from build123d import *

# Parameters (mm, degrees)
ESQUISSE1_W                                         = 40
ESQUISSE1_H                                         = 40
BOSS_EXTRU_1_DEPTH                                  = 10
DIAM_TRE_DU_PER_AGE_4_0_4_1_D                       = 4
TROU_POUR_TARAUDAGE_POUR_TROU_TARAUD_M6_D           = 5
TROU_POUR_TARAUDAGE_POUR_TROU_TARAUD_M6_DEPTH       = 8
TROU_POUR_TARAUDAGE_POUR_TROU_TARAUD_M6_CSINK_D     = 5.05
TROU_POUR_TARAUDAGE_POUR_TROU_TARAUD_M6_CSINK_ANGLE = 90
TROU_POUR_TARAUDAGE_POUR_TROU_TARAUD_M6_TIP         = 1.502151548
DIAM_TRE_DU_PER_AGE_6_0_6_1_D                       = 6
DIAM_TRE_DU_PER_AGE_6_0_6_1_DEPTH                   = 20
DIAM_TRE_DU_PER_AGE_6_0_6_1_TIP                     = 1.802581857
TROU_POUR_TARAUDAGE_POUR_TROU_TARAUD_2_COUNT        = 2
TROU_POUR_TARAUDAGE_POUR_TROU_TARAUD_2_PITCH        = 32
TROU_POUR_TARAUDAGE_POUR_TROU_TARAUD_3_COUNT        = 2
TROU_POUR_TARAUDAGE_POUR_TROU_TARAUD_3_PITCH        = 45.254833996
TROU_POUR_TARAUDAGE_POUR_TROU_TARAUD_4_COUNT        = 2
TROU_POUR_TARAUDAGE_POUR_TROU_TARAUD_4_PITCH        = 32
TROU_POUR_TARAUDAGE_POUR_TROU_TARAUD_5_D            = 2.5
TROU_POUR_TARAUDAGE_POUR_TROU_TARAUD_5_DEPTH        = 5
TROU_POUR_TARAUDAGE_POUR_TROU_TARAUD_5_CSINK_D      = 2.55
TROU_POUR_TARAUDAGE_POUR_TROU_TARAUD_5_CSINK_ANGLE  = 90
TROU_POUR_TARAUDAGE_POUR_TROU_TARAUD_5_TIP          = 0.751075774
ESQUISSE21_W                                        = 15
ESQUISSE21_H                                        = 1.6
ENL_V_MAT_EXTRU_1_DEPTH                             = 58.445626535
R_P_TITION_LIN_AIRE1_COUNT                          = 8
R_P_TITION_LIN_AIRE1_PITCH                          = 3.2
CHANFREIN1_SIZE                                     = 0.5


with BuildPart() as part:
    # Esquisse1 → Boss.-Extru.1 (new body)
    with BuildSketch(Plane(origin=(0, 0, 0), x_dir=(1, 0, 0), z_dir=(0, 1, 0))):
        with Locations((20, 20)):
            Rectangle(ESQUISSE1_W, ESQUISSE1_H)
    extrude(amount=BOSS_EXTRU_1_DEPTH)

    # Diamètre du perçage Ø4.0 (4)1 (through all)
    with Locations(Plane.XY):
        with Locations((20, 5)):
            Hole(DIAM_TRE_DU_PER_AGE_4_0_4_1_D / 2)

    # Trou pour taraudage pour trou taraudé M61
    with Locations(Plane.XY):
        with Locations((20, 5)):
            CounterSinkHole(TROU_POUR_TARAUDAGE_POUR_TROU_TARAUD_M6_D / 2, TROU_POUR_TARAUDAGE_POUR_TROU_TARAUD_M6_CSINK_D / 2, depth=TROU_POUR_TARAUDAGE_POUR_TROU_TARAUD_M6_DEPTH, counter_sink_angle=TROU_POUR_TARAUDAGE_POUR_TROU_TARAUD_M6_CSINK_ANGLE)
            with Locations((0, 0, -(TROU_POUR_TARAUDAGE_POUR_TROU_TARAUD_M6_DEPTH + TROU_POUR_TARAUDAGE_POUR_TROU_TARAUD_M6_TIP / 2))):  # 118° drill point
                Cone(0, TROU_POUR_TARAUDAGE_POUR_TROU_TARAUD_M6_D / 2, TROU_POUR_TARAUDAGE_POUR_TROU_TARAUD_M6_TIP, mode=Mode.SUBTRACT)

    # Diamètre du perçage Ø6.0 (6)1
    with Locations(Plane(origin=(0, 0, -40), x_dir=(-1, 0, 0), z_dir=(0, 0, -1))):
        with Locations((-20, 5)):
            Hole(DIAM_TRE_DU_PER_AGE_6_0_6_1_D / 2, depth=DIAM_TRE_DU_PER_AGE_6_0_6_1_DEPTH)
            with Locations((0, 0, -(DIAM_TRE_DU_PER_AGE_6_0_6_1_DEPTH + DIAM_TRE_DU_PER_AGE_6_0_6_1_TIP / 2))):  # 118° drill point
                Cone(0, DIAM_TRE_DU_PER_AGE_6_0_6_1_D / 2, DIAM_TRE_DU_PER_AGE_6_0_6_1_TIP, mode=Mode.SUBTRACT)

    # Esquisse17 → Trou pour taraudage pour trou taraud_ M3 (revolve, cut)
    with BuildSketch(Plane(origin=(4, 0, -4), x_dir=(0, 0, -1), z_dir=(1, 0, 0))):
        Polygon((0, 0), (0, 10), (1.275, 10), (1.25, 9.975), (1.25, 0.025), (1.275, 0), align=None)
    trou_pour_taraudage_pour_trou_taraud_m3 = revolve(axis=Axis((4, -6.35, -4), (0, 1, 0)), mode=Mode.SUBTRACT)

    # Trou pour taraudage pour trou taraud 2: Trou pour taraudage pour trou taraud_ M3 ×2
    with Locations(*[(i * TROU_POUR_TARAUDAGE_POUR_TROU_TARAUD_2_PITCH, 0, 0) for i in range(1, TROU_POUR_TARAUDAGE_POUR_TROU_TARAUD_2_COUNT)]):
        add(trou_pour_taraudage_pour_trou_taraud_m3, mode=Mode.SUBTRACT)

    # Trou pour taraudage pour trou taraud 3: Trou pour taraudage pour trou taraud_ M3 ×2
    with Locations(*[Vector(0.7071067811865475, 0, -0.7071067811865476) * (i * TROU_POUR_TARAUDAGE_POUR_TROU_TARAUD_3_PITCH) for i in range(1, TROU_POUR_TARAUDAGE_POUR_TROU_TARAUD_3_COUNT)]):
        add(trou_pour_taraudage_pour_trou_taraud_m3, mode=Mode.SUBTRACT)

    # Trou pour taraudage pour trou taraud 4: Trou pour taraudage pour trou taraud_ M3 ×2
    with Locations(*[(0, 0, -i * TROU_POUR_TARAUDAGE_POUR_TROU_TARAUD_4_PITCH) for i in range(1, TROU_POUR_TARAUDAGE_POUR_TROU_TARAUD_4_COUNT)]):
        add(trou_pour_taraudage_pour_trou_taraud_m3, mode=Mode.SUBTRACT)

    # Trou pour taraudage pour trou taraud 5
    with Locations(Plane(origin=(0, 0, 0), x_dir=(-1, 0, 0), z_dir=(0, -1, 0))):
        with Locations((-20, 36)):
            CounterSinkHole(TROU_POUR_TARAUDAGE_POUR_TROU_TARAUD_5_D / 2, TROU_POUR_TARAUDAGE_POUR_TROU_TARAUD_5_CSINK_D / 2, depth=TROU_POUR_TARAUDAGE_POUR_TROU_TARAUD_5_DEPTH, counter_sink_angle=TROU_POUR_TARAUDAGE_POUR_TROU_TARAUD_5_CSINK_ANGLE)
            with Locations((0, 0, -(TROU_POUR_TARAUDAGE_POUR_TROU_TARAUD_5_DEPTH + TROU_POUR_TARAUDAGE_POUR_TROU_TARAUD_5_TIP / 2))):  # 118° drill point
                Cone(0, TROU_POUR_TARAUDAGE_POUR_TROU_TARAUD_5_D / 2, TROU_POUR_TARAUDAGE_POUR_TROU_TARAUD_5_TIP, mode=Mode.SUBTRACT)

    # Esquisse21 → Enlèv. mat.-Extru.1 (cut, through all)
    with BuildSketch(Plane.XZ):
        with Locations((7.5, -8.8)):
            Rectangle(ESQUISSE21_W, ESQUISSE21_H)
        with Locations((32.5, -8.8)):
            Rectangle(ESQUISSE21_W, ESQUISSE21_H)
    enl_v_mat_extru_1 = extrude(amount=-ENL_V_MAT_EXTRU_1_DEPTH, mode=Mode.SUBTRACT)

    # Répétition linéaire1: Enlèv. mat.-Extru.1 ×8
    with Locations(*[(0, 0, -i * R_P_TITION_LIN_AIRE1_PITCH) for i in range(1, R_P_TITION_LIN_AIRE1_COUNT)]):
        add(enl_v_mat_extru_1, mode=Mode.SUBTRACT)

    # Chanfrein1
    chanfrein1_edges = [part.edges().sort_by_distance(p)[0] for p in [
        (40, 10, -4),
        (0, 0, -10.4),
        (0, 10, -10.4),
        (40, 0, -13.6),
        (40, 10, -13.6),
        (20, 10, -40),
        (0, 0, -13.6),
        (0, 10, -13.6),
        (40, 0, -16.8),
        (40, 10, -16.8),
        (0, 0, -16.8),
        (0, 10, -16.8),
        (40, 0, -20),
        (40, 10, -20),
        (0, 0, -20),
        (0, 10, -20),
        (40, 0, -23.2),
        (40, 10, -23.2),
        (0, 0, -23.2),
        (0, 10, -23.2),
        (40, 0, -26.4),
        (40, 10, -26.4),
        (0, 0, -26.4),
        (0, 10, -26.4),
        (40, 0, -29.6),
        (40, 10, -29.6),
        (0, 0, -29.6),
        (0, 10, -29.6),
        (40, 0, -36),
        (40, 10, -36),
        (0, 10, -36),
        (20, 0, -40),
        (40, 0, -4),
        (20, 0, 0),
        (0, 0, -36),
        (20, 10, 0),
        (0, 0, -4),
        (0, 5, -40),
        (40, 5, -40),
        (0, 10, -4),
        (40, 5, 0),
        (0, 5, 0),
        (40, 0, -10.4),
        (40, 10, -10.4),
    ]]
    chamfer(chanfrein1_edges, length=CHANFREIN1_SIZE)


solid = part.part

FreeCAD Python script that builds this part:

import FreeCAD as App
import Part
import Sketcher
from FreeCAD import Vector
Q = App.Units.Quantity


def edges_at(feature, points):
    """Names of the edges that pass closest to the given points."""
    edges = feature.Shape.Edges
    near = lambda p: min(range(len(edges)), key=lambda i: edges[i].distToShape(Part.Vertex(*p))[0])
    return sorted({f"Edge{near(p) + 1}" for p in points})


def add_polygon(sketch, points):
    """Adds a closed chain of lines whose ends are joined by coincident constraints."""
    first, n = sketch.GeometryCount, len(points)
    for a, b in zip(points, points[1:] + points[:1]):
        sketch.addGeometry(Part.LineSegment(App.Vector(*a, 0), App.Vector(*b, 0)), False)
    for i in range(n):
        sketch.addConstraint(Sketcher.Constraint("Coincident", first + i, 2, first + (i + 1) % n, 1))

doc = App.newDocument("Part")
body = doc.addObject("PartDesign::Body", "Body")

# Sketch on XZ plane
sketch1 = body.newObject("Sketcher::SketchObject", "Sketch")
sketch1.AttachmentSupport = (doc.getObject("XZ_Plane"), [""])
sketch1.MapMode = "FlatFace"
add_polygon(sketch1, [(0, -40), (0, 0), (40, 0), (40, -40)])  # lines 0-3
sketch1.addConstraint(Sketcher.Constraint("Vertical", 0))
sketch1.addConstraint(Sketcher.Constraint("Horizontal", 1))
sketch1.addConstraint(Sketcher.Constraint("Vertical", 2))
sketch1.addConstraint(Sketcher.Constraint("Horizontal", 3))
sketch1.addConstraint(Sketcher.Constraint("Coincident", 0, 2, -1, 1))
sketch1.addConstraint(Sketcher.Constraint("Equal", 3, 0))
sketch1.addConstraint(Sketcher.Constraint("DistanceX", 1, 1, 1, 2, Q("40 mm")))
pad1 = body.newObject("PartDesign::Pad", "Pad")
pad1.Profile = sketch1
pad1.Length = 10
pad1.Reversed = True

# Sketch on XY plane
sketch2 = body.newObject("Sketcher::SketchObject", "Sketch001")
sketch2.AttachmentSupport = (doc.getObject("XY_Plane"), [""])
sketch2.MapMode = "FlatFace"
sketch2.addGeometry(Part.Circle(Vector(20, 5, 0), Vector(0, 0, 1), 2), False)
sketch2.addConstraint(Sketcher.Constraint("Diameter", 0, Q("4 mm")))
sketch2.addConstraint(Sketcher.Constraint("DistanceX", -1, 1, 0, 3, Q("20 mm")))
sketch2.addConstraint(Sketcher.Constraint("DistanceY", -1, 1, 0, 3, Q("5 mm")))
doc.recompute()
hole = body.newObject("PartDesign::Hole", "Hole")
hole.Profile = sketch2
hole.ThreadType = "None"
hole.Diameter = 4
hole.DepthType = "ThroughAll"

# Sketch on XY plane
sketch3 = body.newObject("Sketcher::SketchObject", "Sketch002")
sketch3.AttachmentSupport = (doc.getObject("XY_Plane"), [""])
sketch3.MapMode = "FlatFace"
sketch3.addGeometry(Part.Circle(Vector(20, 5, 0), Vector(0, 0, 1), 2.5), False)
sketch3.addConstraint(Sketcher.Constraint("Diameter", 0, Q("5 mm")))
sketch3.addConstraint(Sketcher.Constraint("DistanceX", -1, 1, 0, 3, Q("20 mm")))
sketch3.addConstraint(Sketcher.Constraint("DistanceY", -1, 1, 0, 3, Q("5 mm")))
doc.recompute()
hole2 = body.newObject("PartDesign::Hole", "Hole001")
hole2.Profile = sketch3
hole2.ThreadType = "None"
hole2.Diameter = 5
hole2.DepthType = "Dimension"
hole2.Depth = 8
hole2.DrillPoint = "Angled"
hole2.DrillPointAngle = 118
hole2.HoleCutType = "Countersink"
hole2.HoleCutDiameter = 5.05
hole2.HoleCutCountersinkAngle = 90

# Sketch on XY plane
sketch4 = body.newObject("Sketcher::SketchObject", "Sketch003")
sketch4.AttachmentSupport = (doc.getObject("XY_Plane"), [""])
sketch4.MapMode = "FlatFace"
sketch4.AttachmentOffset = App.Placement(Vector(0, 0, -40), App.Rotation())
sketch4.addGeometry(Part.Circle(Vector(20, 5, 0), Vector(0, 0, 1), 3), False)
sketch4.addConstraint(Sketcher.Constraint("Diameter", 0, Q("6 mm")))
sketch4.addConstraint(Sketcher.Constraint("DistanceX", -1, 1, 0, 3, Q("20 mm")))
sketch4.addConstraint(Sketcher.Constraint("DistanceY", -1, 1, 0, 3, Q("5 mm")))
doc.recompute()
hole3 = body.newObject("PartDesign::Hole", "Hole002")
hole3.Profile = sketch4
hole3.ThreadType = "None"
hole3.Diameter = 6
hole3.DepthType = "Dimension"
hole3.Depth = 20
hole3.DrillPoint = "Angled"
hole3.DrillPointAngle = 118
hole3.Reversed = True

# Sketch on YZ plane
sketch5 = body.newObject("Sketcher::SketchObject", "Sketch004")
sketch5.AttachmentSupport = (doc.getObject("YZ_Plane"), [""])
sketch5.MapMode = "FlatFace"
sketch5.AttachmentOffset = App.Placement(Vector(0, 0, 4), App.Rotation())
add_polygon(sketch5, [(10, -4), (0, -4), (0, -5.275), (0.025, -5.25), (9.975, -5.25), (10, -5.275)])  # lines 0-5
sketch5.addGeometry(Part.LineSegment(Vector(0, -4, 0), Vector(10, -4, 0)), True)  # axis
sketch5.addConstraint(Sketcher.Constraint("Horizontal", 0))
sketch5.addConstraint(Sketcher.Constraint("Vertical", 1))
sketch5.addConstraint(Sketcher.Constraint("Horizontal", 3))
sketch5.addConstraint(Sketcher.Constraint("Vertical", 5))
sketch5.addConstraint(Sketcher.Constraint("Horizontal", 6))
sketch5.addConstraint(Sketcher.Constraint("Coincident", 6, 1, 0, 2))
sketch5.addConstraint(Sketcher.Constraint("PointOnObject", 0, 2, -2))
sketch5.addConstraint(Sketcher.Constraint("Perpendicular", 2, 4))
sketch5.addConstraint(Sketcher.Constraint("Horizontal", 1, 2, 4, 2))
sketch5.addConstraint(Sketcher.Constraint("Vertical", 4, 2, 6, 2))
sketch5.addConstraint(Sketcher.Constraint("Equal", 2, 4))
sketch5.addConstraint(Sketcher.Constraint("DistanceX", 0, 2, 0, 1, Q("10 mm")))
sketch5.addConstraint(Sketcher.Constraint("DistanceY", 0, 2, -1, 1, Q("4 mm")))
sketch5.addConstraint(Sketcher.Constraint("DistanceX", 3, 1, 3, 2, Q("9.95 mm")))
sketch5.addConstraint(Sketcher.Constraint("DistanceY", 1, 2, 1, 1, Q("1.275 mm")))
groove = body.newObject("PartDesign::Groove", "Groove")
groove.Profile = sketch5
groove.ReferenceAxis = (sketch5, ["Axis0"])
groove.Angle = 360
doc.recompute()

linearpattern = body.newObject("PartDesign::LinearPattern", "LinearPattern")
linearpattern.Originals = [groove]
linearpattern.Direction = (doc.getObject("X_Axis"), [""])
linearpattern.Mode = "offset"
linearpattern.Offset = 32
linearpattern.Occurrences = 2
body.Tip = linearpattern
doc.recompute()

datumline = body.newObject("PartDesign::Line", "DatumLine")
datumline.Placement = App.Placement(Vector(0, 0, 0), App.Rotation(Vector(0, 0, 1), Vector(0.707106781, 0, -0.707106781)))
linearpattern2 = body.newObject("PartDesign::LinearPattern", "LinearPattern001")
linearpattern2.Originals = [groove]
linearpattern2.Direction = (datumline, [""])
linearpattern2.Mode = "offset"
linearpattern2.Offset = 45.254834
linearpattern2.Occurrences = 2
body.Tip = linearpattern2
doc.recompute()

linearpattern3 = body.newObject("PartDesign::LinearPattern", "LinearPattern002")
linearpattern3.Originals = [groove]
linearpattern3.Direction = (doc.getObject("Z_Axis"), [""])
linearpattern3.Mode = "offset"
linearpattern3.Offset = 32
linearpattern3.Occurrences = 2
linearpattern3.Reversed = True
body.Tip = linearpattern3

# Sketch on XZ plane
sketch6 = body.newObject("Sketcher::SketchObject", "Sketch005")
sketch6.AttachmentSupport = (doc.getObject("XZ_Plane"), [""])
sketch6.MapMode = "FlatFace"
sketch6.addGeometry(Part.Circle(Vector(20, -36, 0), Vector(0, 0, 1), 1.25), False)
sketch6.addConstraint(Sketcher.Constraint("Diameter", 0, Q("2.5 mm")))
sketch6.addConstraint(Sketcher.Constraint("DistanceX", -1, 1, 0, 3, Q("20 mm")))
sketch6.addConstraint(Sketcher.Constraint("DistanceY", 0, 3, -1, 1, Q("36 mm")))
doc.recompute()
hole4 = body.newObject("PartDesign::Hole", "Hole003")
hole4.Profile = sketch6
hole4.ThreadType = "None"
hole4.Diameter = 2.5
hole4.DepthType = "Dimension"
hole4.Depth = 5
hole4.DrillPoint = "Angled"
hole4.DrillPointAngle = 118
hole4.HoleCutType = "Countersink"
hole4.HoleCutDiameter = 2.55
hole4.HoleCutCountersinkAngle = 90

# Sketch on XZ plane
sketch7 = body.newObject("Sketcher::SketchObject", "Sketch006")
sketch7.AttachmentSupport = (doc.getObject("XZ_Plane"), [""])
sketch7.MapMode = "FlatFace"
add_polygon(sketch7, [(0, -8), (0, -9.6), (15, -9.6), (15, -8)])  # lines 0-3
add_polygon(sketch7, [(25, -8), (25, -9.6), (40, -9.6), (40, -8)])  # lines 4-7
sketch7.addConstraint(Sketcher.Constraint("Vertical", 0))
sketch7.addConstraint(Sketcher.Constraint("Horizontal", 1))
sketch7.addConstraint(Sketcher.Constraint("Vertical", 2))
sketch7.addConstraint(Sketcher.Constraint("Horizontal", 3))
sketch7.addConstraint(Sketcher.Constraint("Vertical", 4))
sketch7.addConstraint(Sketcher.Constraint("Horizontal", 5))
sketch7.addConstraint(Sketcher.Constraint("Vertical", 6))
sketch7.addConstraint(Sketcher.Constraint("Horizontal", 7))
sketch7.addConstraint(Sketcher.Constraint("PointOnObject", 0, 2, -2))
sketch7.addConstraint(Sketcher.Constraint("Horizontal", 1, 2, 4, 2))
sketch7.addConstraint(Sketcher.Constraint("Horizontal", 3, 2, 6, 2))
sketch7.addConstraint(Sketcher.Constraint("Equal", 3, 5))
sketch7.addConstraint(Sketcher.Constraint("DistanceX", 1, 1, 1, 2, Q("15 mm")))
sketch7.addConstraint(Sketcher.Constraint("DistanceY", 0, 2, 0, 1, Q("1.6 mm")))
sketch7.addConstraint(Sketcher.Constraint("DistanceY", 2, 2, -1, 1, Q("8 mm")))
sketch7.addConstraint(Sketcher.Constraint("DistanceX", -1, 1, 4, 2, Q("25 mm")))
pocket1 = body.newObject("PartDesign::Pocket", "Pocket")
pocket1.Profile = sketch7
pocket1.Type = "ThroughAll"
doc.recompute()

linearpattern4 = body.newObject("PartDesign::LinearPattern", "LinearPattern003")
linearpattern4.Originals = [pocket1]
linearpattern4.Direction = (doc.getObject("Z_Axis"), [""])
linearpattern4.Mode = "offset"
linearpattern4.Offset = 3.2
linearpattern4.Occurrences = 8
linearpattern4.Reversed = True
body.Tip = linearpattern4
doc.recompute()

chamfer = body.newObject("PartDesign::Chamfer", "Chamfer")
chamfer.Base = (linearpattern4, edges_at(linearpattern4, [
    (40, 10, -4),
    (0, 0, -10.4),
    (0, 10, -10.4),
    (40, 0, -13.6),
    (40, 10, -13.6),
    (20, 10, -40),
    (0, 0, -13.6),
    (0, 10, -13.6),
    (40, 0, -16.8),
    (40, 10, -16.8),
    (0, 0, -16.8),
    (0, 10, -16.8),
    (40, 0, -20),
    (40, 10, -20),
    (0, 0, -20),
    (0, 10, -20),
    (40, 0, -23.2),
    (40, 10, -23.2),
    (0, 0, -23.2),
    (0, 10, -23.2),
    (40, 0, -26.4),
    (40, 10, -26.4),
    (0, 0, -26.4),
    (0, 10, -26.4),
    (40, 0, -29.6),
    (40, 10, -29.6),
    (0, 0, -29.6),
    (0, 10, -29.6),
    (40, 0, -36),
    (40, 10, -36),
    (0, 10, -36),
    (20, 0, -40),
    (40, 0, -4),
    (20, 0, 0),
    (0, 0, -36),
    (20, 10, 0),
    (0, 0, -4),
    (0, 5, -40),
    (40, 5, -40),
    (0, 10, -4),
    (40, 5, 0),
    (0, 5, 0),
    (40, 0, -10.4),
    (40, 10, -10.4),
]))
chamfer.Size = 0.5

doc.recompute()
